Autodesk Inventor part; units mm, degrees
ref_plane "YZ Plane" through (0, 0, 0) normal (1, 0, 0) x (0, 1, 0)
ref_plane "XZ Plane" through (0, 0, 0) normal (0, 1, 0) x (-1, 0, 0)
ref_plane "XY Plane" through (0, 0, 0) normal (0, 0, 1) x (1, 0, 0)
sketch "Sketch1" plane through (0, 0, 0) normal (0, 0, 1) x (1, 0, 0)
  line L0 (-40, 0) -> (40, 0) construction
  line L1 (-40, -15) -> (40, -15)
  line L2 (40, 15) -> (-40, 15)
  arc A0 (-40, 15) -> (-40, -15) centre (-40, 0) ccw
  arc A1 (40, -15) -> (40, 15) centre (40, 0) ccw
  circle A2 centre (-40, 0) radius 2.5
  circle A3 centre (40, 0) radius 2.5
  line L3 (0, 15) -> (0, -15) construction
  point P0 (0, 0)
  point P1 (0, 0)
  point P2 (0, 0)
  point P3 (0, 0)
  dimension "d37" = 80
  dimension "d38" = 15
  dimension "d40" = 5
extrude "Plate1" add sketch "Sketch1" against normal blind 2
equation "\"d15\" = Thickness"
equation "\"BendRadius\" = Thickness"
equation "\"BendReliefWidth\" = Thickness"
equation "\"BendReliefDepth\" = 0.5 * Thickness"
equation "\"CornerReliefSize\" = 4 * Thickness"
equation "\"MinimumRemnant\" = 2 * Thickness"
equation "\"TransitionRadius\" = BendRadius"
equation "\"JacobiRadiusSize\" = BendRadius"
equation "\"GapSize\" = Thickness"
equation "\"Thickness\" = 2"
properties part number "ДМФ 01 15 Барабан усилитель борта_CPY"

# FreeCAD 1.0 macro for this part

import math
import FreeCAD as App
import Part
import Sketcher
from FreeCAD import Vector
Q = App.Units.Quantity

doc = App.newDocument("Part")
body = doc.addObject("PartDesign::Body", "Body")

# Sketch on XY plane
sketch1 = body.newObject("Sketcher::SketchObject", "Sketch")
sketch1.AttachmentSupport = (doc.getObject("XY_Plane"), [""])
sketch1.MapMode = "FlatFace"
sketch1.addGeometry([
    Part.ArcOfCircle(Part.Circle(Vector(-40, 0, 0), Vector(0, 0, 1), 15), math.radians(90), math.radians(270)),  # 0
    Part.LineSegment(Vector(-40, -15, 0), Vector(40, -15, 0)),  # 1
    Part.ArcOfCircle(Part.Circle(Vector(40, 0, 0), Vector(0, 0, 1), 15), math.radians(-90), math.radians(90)),  # 2
    Part.LineSegment(Vector(40, 15, 0), Vector(-40, 15, 0)),  # 3
    Part.Circle(Vector(-40, 0, 0), Vector(0, 0, 1), 2.5),  # 4
    Part.Circle(Vector(40, 0, 0), Vector(0, 0, 1), 2.5),  # 5
], False)
sketch1.addConstraint([
    Sketcher.Constraint("Tangent", 0, 2, 1, 1),
    Sketcher.Constraint("Tangent", 1, 2, 2, 1),
    Sketcher.Constraint("Tangent", 2, 2, 3, 1),
    Sketcher.Constraint("Tangent", 3, 2, 0, 1),
    Sketcher.Constraint("Horizontal", 1),
    Sketcher.Constraint("Horizontal", 3),
    Sketcher.Constraint("Coincident", 4, 3, 0, 3),
    Sketcher.Constraint("Coincident", 5, 3, 2, 3),
    Sketcher.Constraint("Equal", 4, 5),
    Sketcher.Constraint("Symmetric", 0, 3, 2, 3, -1, 1),
    Sketcher.Constraint("Diameter", 4, Q("5 mm")),
    Sketcher.Constraint("Radius", 0, Q("15 mm")),
    Sketcher.Constraint("DistanceX", 1, 1, 1, 2, Q("80 mm")),
])
pad1 = body.newObject("PartDesign::Pad", "Pad")
pad1.Profile = sketch1
pad1.Length = 2
pad1.Reversed = True

doc.recompute()
